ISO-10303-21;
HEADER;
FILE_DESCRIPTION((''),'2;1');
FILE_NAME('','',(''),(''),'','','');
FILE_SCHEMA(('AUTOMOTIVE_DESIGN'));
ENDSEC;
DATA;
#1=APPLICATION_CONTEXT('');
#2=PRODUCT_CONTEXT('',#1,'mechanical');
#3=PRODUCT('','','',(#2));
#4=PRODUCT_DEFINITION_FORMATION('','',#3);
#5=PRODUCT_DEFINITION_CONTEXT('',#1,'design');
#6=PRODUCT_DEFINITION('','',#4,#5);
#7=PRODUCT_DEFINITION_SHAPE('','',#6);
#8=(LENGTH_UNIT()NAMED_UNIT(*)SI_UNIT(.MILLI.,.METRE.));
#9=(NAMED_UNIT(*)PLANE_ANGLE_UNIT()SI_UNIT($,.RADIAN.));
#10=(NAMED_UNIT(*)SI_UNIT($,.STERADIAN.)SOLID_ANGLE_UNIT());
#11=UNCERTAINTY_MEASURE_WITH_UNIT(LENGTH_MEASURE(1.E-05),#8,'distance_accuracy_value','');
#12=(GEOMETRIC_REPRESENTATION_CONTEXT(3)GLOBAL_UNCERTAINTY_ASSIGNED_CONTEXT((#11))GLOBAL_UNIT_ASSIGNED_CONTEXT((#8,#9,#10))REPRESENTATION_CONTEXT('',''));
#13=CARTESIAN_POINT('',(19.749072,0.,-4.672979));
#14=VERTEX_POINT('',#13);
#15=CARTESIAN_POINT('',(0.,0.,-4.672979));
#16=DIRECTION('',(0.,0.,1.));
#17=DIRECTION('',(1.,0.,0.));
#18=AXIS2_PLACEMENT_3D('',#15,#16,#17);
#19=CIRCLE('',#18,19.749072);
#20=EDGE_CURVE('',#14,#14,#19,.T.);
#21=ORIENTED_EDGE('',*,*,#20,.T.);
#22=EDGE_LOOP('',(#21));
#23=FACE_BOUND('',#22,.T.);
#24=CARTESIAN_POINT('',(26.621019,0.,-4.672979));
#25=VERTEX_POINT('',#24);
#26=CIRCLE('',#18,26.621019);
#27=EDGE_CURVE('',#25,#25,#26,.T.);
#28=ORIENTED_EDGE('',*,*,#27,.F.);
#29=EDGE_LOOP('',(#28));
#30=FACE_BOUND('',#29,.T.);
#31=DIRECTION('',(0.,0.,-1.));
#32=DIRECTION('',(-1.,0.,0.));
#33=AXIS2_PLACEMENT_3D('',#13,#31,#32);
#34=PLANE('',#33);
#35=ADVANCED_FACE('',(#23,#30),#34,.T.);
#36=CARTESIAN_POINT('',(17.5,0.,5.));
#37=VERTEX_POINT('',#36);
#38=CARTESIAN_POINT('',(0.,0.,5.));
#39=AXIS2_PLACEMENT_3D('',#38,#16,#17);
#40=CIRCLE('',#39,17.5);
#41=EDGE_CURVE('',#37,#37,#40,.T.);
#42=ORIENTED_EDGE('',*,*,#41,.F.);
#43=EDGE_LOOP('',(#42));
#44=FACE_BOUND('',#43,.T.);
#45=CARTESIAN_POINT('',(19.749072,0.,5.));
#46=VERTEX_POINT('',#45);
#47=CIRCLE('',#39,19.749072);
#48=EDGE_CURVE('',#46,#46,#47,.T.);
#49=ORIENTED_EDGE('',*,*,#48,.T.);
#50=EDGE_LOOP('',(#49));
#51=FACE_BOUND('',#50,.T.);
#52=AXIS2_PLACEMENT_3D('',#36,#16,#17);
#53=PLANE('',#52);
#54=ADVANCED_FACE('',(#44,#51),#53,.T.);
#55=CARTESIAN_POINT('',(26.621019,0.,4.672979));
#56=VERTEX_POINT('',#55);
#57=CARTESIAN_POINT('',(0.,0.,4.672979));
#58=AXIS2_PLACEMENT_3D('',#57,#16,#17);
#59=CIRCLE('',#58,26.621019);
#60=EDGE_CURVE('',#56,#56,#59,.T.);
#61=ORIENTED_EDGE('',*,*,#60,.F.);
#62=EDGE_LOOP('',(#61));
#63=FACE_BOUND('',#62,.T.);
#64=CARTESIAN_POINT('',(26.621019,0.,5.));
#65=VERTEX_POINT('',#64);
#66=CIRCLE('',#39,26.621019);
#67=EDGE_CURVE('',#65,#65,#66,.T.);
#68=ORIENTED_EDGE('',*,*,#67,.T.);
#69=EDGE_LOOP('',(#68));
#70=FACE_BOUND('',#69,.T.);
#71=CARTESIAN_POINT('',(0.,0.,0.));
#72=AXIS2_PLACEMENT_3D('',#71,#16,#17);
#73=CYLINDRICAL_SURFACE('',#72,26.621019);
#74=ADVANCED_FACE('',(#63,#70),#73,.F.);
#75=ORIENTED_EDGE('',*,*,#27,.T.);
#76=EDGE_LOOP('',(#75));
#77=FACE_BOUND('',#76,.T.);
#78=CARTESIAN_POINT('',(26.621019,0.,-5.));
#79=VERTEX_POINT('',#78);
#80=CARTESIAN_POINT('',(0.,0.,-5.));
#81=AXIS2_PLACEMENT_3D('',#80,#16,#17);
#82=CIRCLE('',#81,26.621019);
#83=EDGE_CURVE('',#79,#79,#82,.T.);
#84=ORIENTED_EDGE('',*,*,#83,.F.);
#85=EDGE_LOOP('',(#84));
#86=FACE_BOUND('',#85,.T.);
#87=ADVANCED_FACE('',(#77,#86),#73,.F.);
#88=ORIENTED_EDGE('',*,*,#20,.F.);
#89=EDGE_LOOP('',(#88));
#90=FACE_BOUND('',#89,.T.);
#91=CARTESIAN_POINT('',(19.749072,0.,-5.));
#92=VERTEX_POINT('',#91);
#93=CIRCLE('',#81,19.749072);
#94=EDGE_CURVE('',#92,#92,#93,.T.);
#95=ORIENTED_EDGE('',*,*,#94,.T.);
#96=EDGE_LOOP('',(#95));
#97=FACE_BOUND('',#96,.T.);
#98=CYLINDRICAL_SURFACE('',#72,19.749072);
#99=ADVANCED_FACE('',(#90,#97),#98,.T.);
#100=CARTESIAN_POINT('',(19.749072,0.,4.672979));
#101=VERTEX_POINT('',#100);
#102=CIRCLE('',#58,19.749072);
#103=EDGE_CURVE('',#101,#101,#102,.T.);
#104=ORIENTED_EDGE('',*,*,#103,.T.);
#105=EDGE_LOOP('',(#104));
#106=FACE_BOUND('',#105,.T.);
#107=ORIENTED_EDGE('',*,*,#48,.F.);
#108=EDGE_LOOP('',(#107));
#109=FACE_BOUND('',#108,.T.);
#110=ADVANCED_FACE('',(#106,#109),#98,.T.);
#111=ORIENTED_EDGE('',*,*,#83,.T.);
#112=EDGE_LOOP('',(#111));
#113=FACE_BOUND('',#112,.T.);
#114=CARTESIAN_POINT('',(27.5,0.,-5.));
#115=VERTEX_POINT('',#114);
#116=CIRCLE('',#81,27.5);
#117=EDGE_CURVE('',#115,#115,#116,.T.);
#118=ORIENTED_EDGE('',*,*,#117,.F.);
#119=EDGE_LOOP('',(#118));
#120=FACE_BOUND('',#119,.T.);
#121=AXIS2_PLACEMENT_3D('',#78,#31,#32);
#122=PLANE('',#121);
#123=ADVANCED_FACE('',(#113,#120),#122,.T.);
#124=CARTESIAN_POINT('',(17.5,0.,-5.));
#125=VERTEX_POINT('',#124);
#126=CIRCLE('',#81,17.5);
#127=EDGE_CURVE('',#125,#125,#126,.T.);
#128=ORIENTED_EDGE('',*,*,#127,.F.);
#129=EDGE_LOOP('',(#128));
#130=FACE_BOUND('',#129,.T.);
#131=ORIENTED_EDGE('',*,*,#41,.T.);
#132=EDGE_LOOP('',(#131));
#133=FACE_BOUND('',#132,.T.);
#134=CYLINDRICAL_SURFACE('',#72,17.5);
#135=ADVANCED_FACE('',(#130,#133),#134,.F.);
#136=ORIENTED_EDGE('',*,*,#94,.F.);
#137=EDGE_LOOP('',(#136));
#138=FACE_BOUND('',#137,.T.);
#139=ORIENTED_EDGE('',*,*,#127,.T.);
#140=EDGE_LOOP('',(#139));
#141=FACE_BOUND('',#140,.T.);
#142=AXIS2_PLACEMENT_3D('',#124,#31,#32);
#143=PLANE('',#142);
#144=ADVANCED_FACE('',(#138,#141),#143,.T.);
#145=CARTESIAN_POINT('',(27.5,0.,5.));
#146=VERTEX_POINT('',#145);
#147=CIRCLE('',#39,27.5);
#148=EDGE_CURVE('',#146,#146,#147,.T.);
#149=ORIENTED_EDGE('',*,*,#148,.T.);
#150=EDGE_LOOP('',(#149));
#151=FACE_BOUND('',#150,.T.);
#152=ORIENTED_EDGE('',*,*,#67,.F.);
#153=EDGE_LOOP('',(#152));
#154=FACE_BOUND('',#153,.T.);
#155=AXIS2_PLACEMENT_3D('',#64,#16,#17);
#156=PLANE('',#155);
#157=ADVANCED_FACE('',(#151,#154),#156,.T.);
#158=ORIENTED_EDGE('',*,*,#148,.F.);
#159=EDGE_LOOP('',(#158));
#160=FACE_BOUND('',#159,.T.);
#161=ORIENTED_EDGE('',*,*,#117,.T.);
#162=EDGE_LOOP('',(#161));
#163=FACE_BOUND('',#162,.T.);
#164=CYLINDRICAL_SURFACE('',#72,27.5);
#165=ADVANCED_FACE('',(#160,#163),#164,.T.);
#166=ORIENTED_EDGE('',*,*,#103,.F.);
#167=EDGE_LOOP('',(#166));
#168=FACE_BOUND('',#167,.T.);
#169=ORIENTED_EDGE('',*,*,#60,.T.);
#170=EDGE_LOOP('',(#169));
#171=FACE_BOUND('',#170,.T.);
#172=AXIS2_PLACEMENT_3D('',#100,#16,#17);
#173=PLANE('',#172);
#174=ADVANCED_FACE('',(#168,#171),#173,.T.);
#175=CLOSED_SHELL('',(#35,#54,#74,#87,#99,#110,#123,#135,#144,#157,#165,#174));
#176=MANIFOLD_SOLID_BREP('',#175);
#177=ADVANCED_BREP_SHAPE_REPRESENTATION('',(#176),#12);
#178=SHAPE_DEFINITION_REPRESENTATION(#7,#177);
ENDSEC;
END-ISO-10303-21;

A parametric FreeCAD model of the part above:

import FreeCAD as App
import Part
import Sketcher
Q = App.Units.Quantity


def add_polygon(sketch, points):
    """Adds a closed chain of lines whose ends are joined by coincident constraints."""
    first, n = sketch.GeometryCount, len(points)
    for a, b in zip(points, points[1:] + points[:1]):
        sketch.addGeometry(Part.LineSegment(App.Vector(*a, 0), App.Vector(*b, 0)), False)
    for i in range(n):
        sketch.addConstraint(Sketcher.Constraint("Coincident", first + i, 2, first + (i + 1) % n, 1))

doc = App.newDocument("Part")
body = doc.addObject("PartDesign::Body", "Body")

sketch1 = doc.addObject("Sketcher::SketchObject", "Sketch")
body.addObject(sketch1)
sketch1.AttachmentSupport = (doc.XZ_Plane, [""])
sketch1.MapMode = "FlatFace"
add_polygon(sketch1, [(17.5, -5), (17.5, 5), (19.749072, 5), (19.749072, 4.672979), (26.621019, 4.672979), (26.621019, 5), (27.5, 5), (27.5, -5), (26.621019, -5), (26.621019, -4.672979), (19.749072, -4.672979), (19.749072, -5)])
sketch1.addConstraint(Sketcher.Constraint("Vertical", 0))
sketch1.addConstraint(Sketcher.Constraint("Horizontal", 1))
sketch1.addConstraint(Sketcher.Constraint("Vertical", 2))
sketch1.addConstraint(Sketcher.Constraint("Horizontal", 3))
sketch1.addConstraint(Sketcher.Constraint("Vertical", 4))
sketch1.addConstraint(Sketcher.Constraint("Horizontal", 5))
sketch1.addConstraint(Sketcher.Constraint("Vertical", 6))
sketch1.addConstraint(Sketcher.Constraint("Horizontal", 7))
sketch1.addConstraint(Sketcher.Constraint("Vertical", 8))
sketch1.addConstraint(Sketcher.Constraint("Horizontal", 9))
sketch1.addConstraint(Sketcher.Constraint("Vertical", 10))
sketch1.addConstraint(Sketcher.Constraint("Horizontal", 11))
sketch1.addConstraint(Sketcher.Constraint("Symmetric", 4, 2, 7, 2, -1))
sketch1.addConstraint(Sketcher.Constraint("Symmetric", 2, 2, 9, 2, -1))
sketch1.addConstraint(Sketcher.Constraint("Horizontal", 1, 2, 4, 2))
sketch1.addConstraint(Sketcher.Constraint("Horizontal", 7, 2, 10, 2))
sketch1.addConstraint(Sketcher.Constraint("DistanceY", 0, 1, 0, 2, Q("10 mm")))
sketch1.addConstraint(Sketcher.Constraint("DistanceX", 0, 2, 5, 2, Q("10 mm")))
sketch1.addConstraint(Sketcher.Constraint("DistanceX", -1, 1, 0, 2, Q("17.5 mm")))
sketch1.addConstraint(Sketcher.Constraint("DistanceX", 5, 1, 5, 2, Q("0.878981 mm")))
sketch1.addConstraint(Sketcher.Constraint("DistanceY", 2, 2, 2, 1, Q("0.327021 mm")))
sketch1.addConstraint(Sketcher.Constraint("DistanceX", 1, 1, 1, 2, Q("2.249072 mm")))
revolution = doc.addObject("PartDesign::Revolution", "Revolution")
body.addObject(revolution)
revolution.Profile = sketch1
revolution.ReferenceAxis = (sketch1, ["V_Axis"])
revolution.Angle = 360

doc.recompute()
